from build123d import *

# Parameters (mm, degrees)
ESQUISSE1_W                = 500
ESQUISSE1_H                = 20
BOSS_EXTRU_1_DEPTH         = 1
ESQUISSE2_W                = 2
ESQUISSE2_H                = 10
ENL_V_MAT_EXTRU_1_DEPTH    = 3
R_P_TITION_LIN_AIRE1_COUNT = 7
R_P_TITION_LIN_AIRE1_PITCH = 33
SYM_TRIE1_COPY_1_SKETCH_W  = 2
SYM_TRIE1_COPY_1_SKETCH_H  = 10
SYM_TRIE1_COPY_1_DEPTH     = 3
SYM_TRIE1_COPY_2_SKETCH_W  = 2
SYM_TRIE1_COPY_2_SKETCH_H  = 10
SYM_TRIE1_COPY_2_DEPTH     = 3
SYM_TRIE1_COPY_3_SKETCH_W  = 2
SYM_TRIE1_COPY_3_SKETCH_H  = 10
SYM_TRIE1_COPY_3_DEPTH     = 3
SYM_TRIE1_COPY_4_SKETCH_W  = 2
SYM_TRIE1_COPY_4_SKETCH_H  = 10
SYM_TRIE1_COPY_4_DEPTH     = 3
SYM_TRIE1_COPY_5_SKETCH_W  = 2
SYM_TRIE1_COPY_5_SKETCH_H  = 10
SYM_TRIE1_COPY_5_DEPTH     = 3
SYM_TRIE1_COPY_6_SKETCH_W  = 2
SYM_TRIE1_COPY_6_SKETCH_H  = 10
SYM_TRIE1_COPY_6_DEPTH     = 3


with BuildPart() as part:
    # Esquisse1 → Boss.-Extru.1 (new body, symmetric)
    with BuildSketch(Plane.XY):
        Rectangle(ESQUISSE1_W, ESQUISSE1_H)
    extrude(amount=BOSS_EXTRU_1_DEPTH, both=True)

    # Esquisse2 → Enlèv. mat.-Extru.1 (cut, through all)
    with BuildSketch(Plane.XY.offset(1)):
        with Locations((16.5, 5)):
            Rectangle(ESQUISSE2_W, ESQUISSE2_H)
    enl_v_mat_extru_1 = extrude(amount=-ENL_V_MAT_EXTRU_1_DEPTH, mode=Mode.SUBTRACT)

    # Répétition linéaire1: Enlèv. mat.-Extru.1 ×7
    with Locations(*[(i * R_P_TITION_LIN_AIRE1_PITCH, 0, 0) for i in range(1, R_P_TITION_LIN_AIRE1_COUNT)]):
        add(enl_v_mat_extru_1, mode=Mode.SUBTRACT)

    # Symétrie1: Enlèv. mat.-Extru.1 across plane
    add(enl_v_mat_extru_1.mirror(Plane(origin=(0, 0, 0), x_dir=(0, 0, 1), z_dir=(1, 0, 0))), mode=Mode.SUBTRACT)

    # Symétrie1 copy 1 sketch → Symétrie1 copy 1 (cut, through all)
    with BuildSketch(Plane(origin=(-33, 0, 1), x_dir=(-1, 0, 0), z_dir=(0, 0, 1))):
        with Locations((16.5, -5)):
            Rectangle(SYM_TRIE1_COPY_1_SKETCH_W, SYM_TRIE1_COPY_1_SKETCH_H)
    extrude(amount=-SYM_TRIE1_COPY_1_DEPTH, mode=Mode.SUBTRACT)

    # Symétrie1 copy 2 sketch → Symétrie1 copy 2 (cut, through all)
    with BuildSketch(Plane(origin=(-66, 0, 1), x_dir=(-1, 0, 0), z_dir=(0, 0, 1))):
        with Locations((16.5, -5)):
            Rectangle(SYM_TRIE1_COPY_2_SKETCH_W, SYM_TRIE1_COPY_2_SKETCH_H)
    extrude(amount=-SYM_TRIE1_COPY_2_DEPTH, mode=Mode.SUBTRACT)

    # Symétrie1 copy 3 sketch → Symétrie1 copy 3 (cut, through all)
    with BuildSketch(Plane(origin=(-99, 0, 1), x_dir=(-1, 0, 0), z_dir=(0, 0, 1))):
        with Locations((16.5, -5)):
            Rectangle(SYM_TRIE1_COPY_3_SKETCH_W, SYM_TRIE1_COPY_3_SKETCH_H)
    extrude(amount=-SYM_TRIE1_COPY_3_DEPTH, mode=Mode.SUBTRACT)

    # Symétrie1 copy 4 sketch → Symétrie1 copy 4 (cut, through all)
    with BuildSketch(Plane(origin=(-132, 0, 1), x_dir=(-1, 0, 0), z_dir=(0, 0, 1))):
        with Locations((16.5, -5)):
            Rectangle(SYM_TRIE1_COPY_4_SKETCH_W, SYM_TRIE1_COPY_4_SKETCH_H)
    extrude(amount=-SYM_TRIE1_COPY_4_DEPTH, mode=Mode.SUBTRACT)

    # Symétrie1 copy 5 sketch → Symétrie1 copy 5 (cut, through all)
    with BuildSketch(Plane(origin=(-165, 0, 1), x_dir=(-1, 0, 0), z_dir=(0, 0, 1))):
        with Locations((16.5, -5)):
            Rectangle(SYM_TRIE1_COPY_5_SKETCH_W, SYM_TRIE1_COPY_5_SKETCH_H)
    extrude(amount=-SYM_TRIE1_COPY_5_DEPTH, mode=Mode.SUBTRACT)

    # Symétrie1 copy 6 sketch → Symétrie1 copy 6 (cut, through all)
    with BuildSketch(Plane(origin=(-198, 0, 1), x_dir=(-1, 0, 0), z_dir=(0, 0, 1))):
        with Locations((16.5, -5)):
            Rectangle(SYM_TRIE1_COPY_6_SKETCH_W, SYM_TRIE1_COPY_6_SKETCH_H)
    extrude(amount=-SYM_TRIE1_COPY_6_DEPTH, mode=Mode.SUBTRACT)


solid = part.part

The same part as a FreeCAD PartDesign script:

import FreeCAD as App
import Part
import Sketcher

V = App.Vector


def add_polygon(sketch, points):
    """Adds a closed chain of lines whose ends are joined by coincident constraints."""
    first, n = sketch.GeometryCount, len(points)
    for a, b in zip(points, points[1:] + points[:1]):
        sketch.addGeometry(Part.LineSegment(App.Vector(*a, 0), App.Vector(*b, 0)), False)
    for i in range(n):
        sketch.addConstraint(Sketcher.Constraint("Coincident", first + i, 2, first + (i + 1) % n, 1))

doc = App.newDocument("Part")
params = doc.addObject("Spreadsheet::Sheet", "Params")
for row, (alias, value) in enumerate([
    ("sketch1_width", "500 mm"),
    ("sketch1_height", "20 mm"),
    ("pad1_length", "2 mm"),
    ("sketch2_width", "2 mm"),
    ("sketch2_height", "10 mm"),
    ("linearpattern_pitch", "33 mm"),
    ("sketch3_width", "2 mm"),
    ("sketch3_height", "10 mm"),
    ("sketch4_width", "2 mm"),
    ("sketch4_height", "10 mm"),
    ("sketch5_width", "2 mm"),
    ("sketch5_height", "10 mm"),
    ("sketch6_width", "2 mm"),
    ("sketch6_height", "10 mm"),
    ("sketch7_width", "2 mm"),
    ("sketch7_height", "10 mm"),
    ("sketch8_width", "2 mm"),
    ("sketch8_height", "10 mm"),
], start=1):
    params.set(f"A{row}", alias)
    params.set(f"B{row}", "=" + value)
    params.setAlias(f"B{row}", alias)

body = doc.addObject("PartDesign::Body", "Body")

# Sketch on XY plane
sketch1 = body.newObject("Sketcher::SketchObject", "Sketch")
sketch1.AttachmentSupport = (doc.getObject("XY_Plane"), [""])
sketch1.MapMode = "FlatFace"
add_polygon(sketch1, [(-250, 10), (-250, -10), (250, -10), (250, 10)])  # lines 0-3
sketch1.addConstraint([
    Sketcher.Constraint("Vertical", 0),
    Sketcher.Constraint("Horizontal", 1),
    Sketcher.Constraint("Vertical", 2),
    Sketcher.Constraint("Horizontal", 3),
    Sketcher.Constraint("Symmetric", 0, 2, 2, 2, -1, 1),
    Sketcher.Constraint("DistanceX", 1, 1, 1, 2, 500.0),
    Sketcher.Constraint("DistanceY", 0, 2, 0, 1, 20.0),
])
sketch1.setExpression("Constraints[9]", "Params.sketch1_width")
sketch1.setExpression("Constraints[10]", "Params.sketch1_height")
pad1 = body.newObject("PartDesign::Pad", "Pad")
pad1.Profile = sketch1
pad1.setExpression("Length", "Params.pad1_length")
pad1.Midplane = True

# Sketch on XY plane
sketch2 = body.newObject("Sketcher::SketchObject", "Sketch001")
sketch2.AttachmentSupport = (doc.getObject("XY_Plane"), [""])
sketch2.MapMode = "FlatFace"
sketch2.AttachmentOffset = App.Placement(V(0, 0, 1), App.Rotation())
add_polygon(sketch2, [(15.5, 10), (15.5, 0), (17.5, 0), (17.5, 10)])  # lines 0-3
sketch2.addConstraint([
    Sketcher.Constraint("Vertical", 0),
    Sketcher.Constraint("Horizontal", 1),
    Sketcher.Constraint("Vertical", 2),
    Sketcher.Constraint("Horizontal", 3),
    Sketcher.Constraint("PointOnObject", 0, 2, -1),
    Sketcher.Constraint("DistanceX", 1, 1, 1, 2, 2.0),
    Sketcher.Constraint("DistanceY", 0, 2, 0, 1, 10.0),
    Sketcher.Constraint("DistanceX", -1, 1, 0, 2, 15.5),
])
sketch2.setExpression("Constraints[9]", "Params.sketch2_width")
sketch2.setExpression("Constraints[10]", "Params.sketch2_height")
pocket1 = body.newObject("PartDesign::Pocket", "Pocket")
pocket1.Profile = sketch2
pocket1.Type = "ThroughAll"
doc.recompute()

linearpattern = body.newObject("PartDesign::LinearPattern", "LinearPattern")
linearpattern.Originals = [pocket1]
linearpattern.Direction = (doc.getObject("X_Axis"), [""])
linearpattern.Mode = "offset"
linearpattern.setExpression("Offset", "Params.linearpattern_pitch")
linearpattern.Occurrences = 7
body.Tip = linearpattern
doc.recompute()

mirrored = body.newObject("PartDesign::Mirrored", "Mirrored")
mirrored.Originals = [pocket1]
mirrored.MirrorPlane = (doc.getObject("YZ_Plane"), [""])
body.Tip = mirrored

# Sketch on XY plane
sketch3 = body.newObject("Sketcher::SketchObject", "Sketch002")
sketch3.AttachmentSupport = (doc.getObject("XY_Plane"), [""])
sketch3.MapMode = "FlatFace"
sketch3.AttachmentOffset = App.Placement(V(0, 0, 1), App.Rotation())
add_polygon(sketch3, [(-48.5, 0), (-48.5, 10), (-50.5, 10), (-50.5, 0)])  # lines 0-3
sketch3.addConstraint([
    Sketcher.Constraint("Vertical", 0),
    Sketcher.Constraint("Horizontal", 1),
    Sketcher.Constraint("Vertical", 2),
    Sketcher.Constraint("Horizontal", 3),
    Sketcher.Constraint("PointOnObject", 2, 2, -1),
    Sketcher.Constraint("DistanceX", 1, 2, 1, 1, 2.0),
    Sketcher.Constraint("DistanceY", 0, 1, 0, 2, 10.0),
    Sketcher.Constraint("DistanceX", 0, 2, -1, 1, 48.5),
])
sketch3.setExpression("Constraints[9]", "Params.sketch3_width")
sketch3.setExpression("Constraints[10]", "Params.sketch3_height")
pocket2 = body.newObject("PartDesign::Pocket", "Pocket001")
pocket2.Profile = sketch3
pocket2.Type = "ThroughAll"

# Sketch on XY plane
sketch4 = body.newObject("Sketcher::SketchObject", "Sketch003")
sketch4.AttachmentSupport = (doc.getObject("XY_Plane"), [""])
sketch4.MapMode = "FlatFace"
sketch4.AttachmentOffset = App.Placement(V(0, 0, 1), App.Rotation())
add_polygon(sketch4, [(-81.5, 0), (-81.5, 10), (-83.5, 10), (-83.5, 0)])  # lines 0-3
sketch4.addConstraint([
    Sketcher.Constraint("Vertical", 0),
    Sketcher.Constraint("Horizontal", 1),
    Sketcher.Constraint("Vertical", 2),
    Sketcher.Constraint("Horizontal", 3),
    Sketcher.Constraint("PointOnObject", 2, 2, -1),
    Sketcher.Constraint("DistanceX", 1, 2, 1, 1, 2.0),
    Sketcher.Constraint("DistanceY", 0, 1, 0, 2, 10.0),
    Sketcher.Constraint("DistanceX", 0, 2, -1, 1, 81.5),
])
sketch4.setExpression("Constraints[9]", "Params.sketch4_width")
sketch4.setExpression("Constraints[10]", "Params.sketch4_height")
pocket3 = body.newObject("PartDesign::Pocket", "Pocket002")
pocket3.Profile = sketch4
pocket3.Type = "ThroughAll"

# Sketch on XY plane
sketch5 = body.newObject("Sketcher::SketchObject", "Sketch004")
sketch5.AttachmentSupport = (doc.getObject("XY_Plane"), [""])
sketch5.MapMode = "FlatFace"
sketch5.AttachmentOffset = App.Placement(V(0, 0, 1), App.Rotation())
add_polygon(sketch5, [(-114.5, 0), (-114.5, 10), (-116.5, 10), (-116.5, 0)])  # lines 0-3
sketch5.addConstraint([
    Sketcher.Constraint("Vertical", 0),
    Sketcher.Constraint("Horizontal", 1),
    Sketcher.Constraint("Vertical", 2),
    Sketcher.Constraint("Horizontal", 3),
    Sketcher.Constraint("PointOnObject", 2, 2, -1),
    Sketcher.Constraint("DistanceX", 1, 2, 1, 1, 2.0),
    Sketcher.Constraint("DistanceY", 0, 1, 0, 2, 10.0),
    Sketcher.Constraint("DistanceX", 0, 2, -1, 1, 114.5),
])
sketch5.setExpression("Constraints[9]", "Params.sketch5_width")
sketch5.setExpression("Constraints[10]", "Params.sketch5_height")
pocket4 = body.newObject("PartDesign::Pocket", "Pocket003")
pocket4.Profile = sketch5
pocket4.Type = "ThroughAll"

# Sketch on XY plane
sketch6 = body.newObject("Sketcher::SketchObject", "Sketch005")
sketch6.AttachmentSupport = (doc.getObject("XY_Plane"), [""])
sketch6.MapMode = "FlatFace"
sketch6.AttachmentOffset = App.Placement(V(0, 0, 1), App.Rotation())
add_polygon(sketch6, [(-147.5, 0), (-147.5, 10), (-149.5, 10), (-149.5, 0)])  # lines 0-3
sketch6.addConstraint([
    Sketcher.Constraint("Vertical", 0),
    Sketcher.Constraint("Horizontal", 1),
    Sketcher.Constraint("Vertical", 2),
    Sketcher.Constraint("Horizontal", 3),
    Sketcher.Constraint("PointOnObject", 2, 2, -1),
    Sketcher.Constraint("DistanceX", 1, 2, 1, 1, 2.0),
    Sketcher.Constraint("DistanceY", 0, 1, 0, 2, 10.0),
    Sketcher.Constraint("DistanceX", 0, 2, -1, 1, 147.5),
])
sketch6.setExpression("Constraints[9]", "Params.sketch6_width")
sketch6.setExpression("Constraints[10]", "Params.sketch6_height")
pocket5 = body.newObject("PartDesign::Pocket", "Pocket004")
pocket5.Profile = sketch6
pocket5.Type = "ThroughAll"

# Sketch on XY plane
sketch7 = body.newObject("Sketcher::SketchObject", "Sketch006")
sketch7.AttachmentSupport = (doc.getObject("XY_Plane"), [""])
sketch7.MapMode = "FlatFace"
sketch7.AttachmentOffset = App.Placement(V(0, 0, 1), App.Rotation())
add_polygon(sketch7, [(-180.5, 0), (-180.5, 10), (-182.5, 10), (-182.5, 0)])  # lines 0-3
sketch7.addConstraint([
    Sketcher.Constraint("Vertical", 0),
    Sketcher.Constraint("Horizontal", 1),
    Sketcher.Constraint("Vertical", 2),
    Sketcher.Constraint("Horizontal", 3),
    Sketcher.Constraint("PointOnObject", 2, 2, -1),
    Sketcher.Constraint("DistanceX", 1, 2, 1, 1, 2.0),
    Sketcher.Constraint("DistanceY", 0, 1, 0, 2, 10.0),
    Sketcher.Constraint("DistanceX", 0, 2, -1, 1, 180.5),
])
sketch7.setExpression("Constraints[9]", "Params.sketch7_width")
sketch7.setExpression("Constraints[10]", "Params.sketch7_height")
pocket6 = body.newObject("PartDesign::Pocket", "Pocket005")
pocket6.Profile = sketch7
pocket6.Type = "ThroughAll"

# Sketch on XY plane
sketch8 = body.newObject("Sketcher::SketchObject", "Sketch007")
sketch8.AttachmentSupport = (doc.getObject("XY_Plane"), [""])
sketch8.MapMode = "FlatFace"
sketch8.AttachmentOffset = App.Placement(V(0, 0, 1), App.Rotation())
add_polygon(sketch8, [(-213.5, 0), (-213.5, 10), (-215.5, 10), (-215.5, 0)])  # lines 0-3
sketch8.addConstraint([
    Sketcher.Constraint("Vertical", 0),
    Sketcher.Constraint("Horizontal", 1),
    Sketcher.Constraint("Vertical", 2),
    Sketcher.Constraint("Horizontal", 3),
    Sketcher.Constraint("PointOnObject", 2, 2, -1),
    Sketcher.Constraint("DistanceX", 1, 2, 1, 1, 2.0),
    Sketcher.Constraint("DistanceY", 0, 1, 0, 2, 10.0),
    Sketcher.Constraint("DistanceX", 0, 2, -1, 1, 213.5),
])
sketch8.setExpression("Constraints[9]", "Params.sketch8_width")
sketch8.setExpression("Constraints[10]", "Params.sketch8_height")
pocket7 = body.newObject("PartDesign::Pocket", "Pocket006")
pocket7.Profile = sketch8
pocket7.Type = "ThroughAll"

doc.recompute()
